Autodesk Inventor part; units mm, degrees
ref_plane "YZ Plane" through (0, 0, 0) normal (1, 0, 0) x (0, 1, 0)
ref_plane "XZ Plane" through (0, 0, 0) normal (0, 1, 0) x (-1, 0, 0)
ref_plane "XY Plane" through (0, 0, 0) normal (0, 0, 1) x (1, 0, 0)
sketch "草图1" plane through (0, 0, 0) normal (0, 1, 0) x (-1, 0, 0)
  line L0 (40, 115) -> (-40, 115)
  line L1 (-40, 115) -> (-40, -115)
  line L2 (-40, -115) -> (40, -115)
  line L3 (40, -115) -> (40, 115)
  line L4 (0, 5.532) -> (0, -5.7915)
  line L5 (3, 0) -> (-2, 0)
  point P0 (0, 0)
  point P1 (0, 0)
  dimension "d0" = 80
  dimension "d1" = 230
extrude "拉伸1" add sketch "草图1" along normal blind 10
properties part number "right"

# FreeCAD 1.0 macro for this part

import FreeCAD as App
import Part
import Sketcher
from FreeCAD import Vector
Q = App.Units.Quantity

doc = App.newDocument("Part")
body = doc.addObject("PartDesign::Body", "Body")

# Sketch on XZ plane
sketch1 = doc.addObject("Sketcher::SketchObject", "Sketch")
body.addObject(sketch1)
sketch1.AttachmentSupport = (doc.XZ_Plane, [""])
sketch1.MapMode = "FlatFace"
sketch1.addGeometry([
    Part.LineSegment(Vector(-40, -115, 0), Vector(-40, 115, 0)),
    Part.LineSegment(Vector(-40, 115, 0), Vector(40, 115, 0)),
    Part.LineSegment(Vector(40, 115, 0), Vector(40, -115, 0)),
    Part.LineSegment(Vector(40, -115, 0), Vector(-40, -115, 0)),
], False)
sketch1.addConstraint([
    Sketcher.Constraint("Coincident", 0, 2, 1, 1),
    Sketcher.Constraint("Coincident", 1, 2, 2, 1),
    Sketcher.Constraint("Coincident", 2, 2, 3, 1),
    Sketcher.Constraint("Coincident", 3, 2, 0, 1),
    Sketcher.Constraint("Vertical", 0),
    Sketcher.Constraint("Horizontal", 1),
    Sketcher.Constraint("Vertical", 2),
    Sketcher.Constraint("Horizontal", 3),
    Sketcher.Constraint("Symmetric", 0, 2, 2, 2, -1, 1),
    Sketcher.Constraint("DistanceX", 1, 1, 1, 2, Q("80 mm")),
    Sketcher.Constraint("DistanceY", 0, 1, 0, 2, Q("230 mm")),
])
pad1 = doc.addObject("PartDesign::Pad", "Pad")
body.addObject(pad1)
pad1.Profile = sketch1
pad1.Length = 10
pad1.Reversed = True

doc.recompute()
